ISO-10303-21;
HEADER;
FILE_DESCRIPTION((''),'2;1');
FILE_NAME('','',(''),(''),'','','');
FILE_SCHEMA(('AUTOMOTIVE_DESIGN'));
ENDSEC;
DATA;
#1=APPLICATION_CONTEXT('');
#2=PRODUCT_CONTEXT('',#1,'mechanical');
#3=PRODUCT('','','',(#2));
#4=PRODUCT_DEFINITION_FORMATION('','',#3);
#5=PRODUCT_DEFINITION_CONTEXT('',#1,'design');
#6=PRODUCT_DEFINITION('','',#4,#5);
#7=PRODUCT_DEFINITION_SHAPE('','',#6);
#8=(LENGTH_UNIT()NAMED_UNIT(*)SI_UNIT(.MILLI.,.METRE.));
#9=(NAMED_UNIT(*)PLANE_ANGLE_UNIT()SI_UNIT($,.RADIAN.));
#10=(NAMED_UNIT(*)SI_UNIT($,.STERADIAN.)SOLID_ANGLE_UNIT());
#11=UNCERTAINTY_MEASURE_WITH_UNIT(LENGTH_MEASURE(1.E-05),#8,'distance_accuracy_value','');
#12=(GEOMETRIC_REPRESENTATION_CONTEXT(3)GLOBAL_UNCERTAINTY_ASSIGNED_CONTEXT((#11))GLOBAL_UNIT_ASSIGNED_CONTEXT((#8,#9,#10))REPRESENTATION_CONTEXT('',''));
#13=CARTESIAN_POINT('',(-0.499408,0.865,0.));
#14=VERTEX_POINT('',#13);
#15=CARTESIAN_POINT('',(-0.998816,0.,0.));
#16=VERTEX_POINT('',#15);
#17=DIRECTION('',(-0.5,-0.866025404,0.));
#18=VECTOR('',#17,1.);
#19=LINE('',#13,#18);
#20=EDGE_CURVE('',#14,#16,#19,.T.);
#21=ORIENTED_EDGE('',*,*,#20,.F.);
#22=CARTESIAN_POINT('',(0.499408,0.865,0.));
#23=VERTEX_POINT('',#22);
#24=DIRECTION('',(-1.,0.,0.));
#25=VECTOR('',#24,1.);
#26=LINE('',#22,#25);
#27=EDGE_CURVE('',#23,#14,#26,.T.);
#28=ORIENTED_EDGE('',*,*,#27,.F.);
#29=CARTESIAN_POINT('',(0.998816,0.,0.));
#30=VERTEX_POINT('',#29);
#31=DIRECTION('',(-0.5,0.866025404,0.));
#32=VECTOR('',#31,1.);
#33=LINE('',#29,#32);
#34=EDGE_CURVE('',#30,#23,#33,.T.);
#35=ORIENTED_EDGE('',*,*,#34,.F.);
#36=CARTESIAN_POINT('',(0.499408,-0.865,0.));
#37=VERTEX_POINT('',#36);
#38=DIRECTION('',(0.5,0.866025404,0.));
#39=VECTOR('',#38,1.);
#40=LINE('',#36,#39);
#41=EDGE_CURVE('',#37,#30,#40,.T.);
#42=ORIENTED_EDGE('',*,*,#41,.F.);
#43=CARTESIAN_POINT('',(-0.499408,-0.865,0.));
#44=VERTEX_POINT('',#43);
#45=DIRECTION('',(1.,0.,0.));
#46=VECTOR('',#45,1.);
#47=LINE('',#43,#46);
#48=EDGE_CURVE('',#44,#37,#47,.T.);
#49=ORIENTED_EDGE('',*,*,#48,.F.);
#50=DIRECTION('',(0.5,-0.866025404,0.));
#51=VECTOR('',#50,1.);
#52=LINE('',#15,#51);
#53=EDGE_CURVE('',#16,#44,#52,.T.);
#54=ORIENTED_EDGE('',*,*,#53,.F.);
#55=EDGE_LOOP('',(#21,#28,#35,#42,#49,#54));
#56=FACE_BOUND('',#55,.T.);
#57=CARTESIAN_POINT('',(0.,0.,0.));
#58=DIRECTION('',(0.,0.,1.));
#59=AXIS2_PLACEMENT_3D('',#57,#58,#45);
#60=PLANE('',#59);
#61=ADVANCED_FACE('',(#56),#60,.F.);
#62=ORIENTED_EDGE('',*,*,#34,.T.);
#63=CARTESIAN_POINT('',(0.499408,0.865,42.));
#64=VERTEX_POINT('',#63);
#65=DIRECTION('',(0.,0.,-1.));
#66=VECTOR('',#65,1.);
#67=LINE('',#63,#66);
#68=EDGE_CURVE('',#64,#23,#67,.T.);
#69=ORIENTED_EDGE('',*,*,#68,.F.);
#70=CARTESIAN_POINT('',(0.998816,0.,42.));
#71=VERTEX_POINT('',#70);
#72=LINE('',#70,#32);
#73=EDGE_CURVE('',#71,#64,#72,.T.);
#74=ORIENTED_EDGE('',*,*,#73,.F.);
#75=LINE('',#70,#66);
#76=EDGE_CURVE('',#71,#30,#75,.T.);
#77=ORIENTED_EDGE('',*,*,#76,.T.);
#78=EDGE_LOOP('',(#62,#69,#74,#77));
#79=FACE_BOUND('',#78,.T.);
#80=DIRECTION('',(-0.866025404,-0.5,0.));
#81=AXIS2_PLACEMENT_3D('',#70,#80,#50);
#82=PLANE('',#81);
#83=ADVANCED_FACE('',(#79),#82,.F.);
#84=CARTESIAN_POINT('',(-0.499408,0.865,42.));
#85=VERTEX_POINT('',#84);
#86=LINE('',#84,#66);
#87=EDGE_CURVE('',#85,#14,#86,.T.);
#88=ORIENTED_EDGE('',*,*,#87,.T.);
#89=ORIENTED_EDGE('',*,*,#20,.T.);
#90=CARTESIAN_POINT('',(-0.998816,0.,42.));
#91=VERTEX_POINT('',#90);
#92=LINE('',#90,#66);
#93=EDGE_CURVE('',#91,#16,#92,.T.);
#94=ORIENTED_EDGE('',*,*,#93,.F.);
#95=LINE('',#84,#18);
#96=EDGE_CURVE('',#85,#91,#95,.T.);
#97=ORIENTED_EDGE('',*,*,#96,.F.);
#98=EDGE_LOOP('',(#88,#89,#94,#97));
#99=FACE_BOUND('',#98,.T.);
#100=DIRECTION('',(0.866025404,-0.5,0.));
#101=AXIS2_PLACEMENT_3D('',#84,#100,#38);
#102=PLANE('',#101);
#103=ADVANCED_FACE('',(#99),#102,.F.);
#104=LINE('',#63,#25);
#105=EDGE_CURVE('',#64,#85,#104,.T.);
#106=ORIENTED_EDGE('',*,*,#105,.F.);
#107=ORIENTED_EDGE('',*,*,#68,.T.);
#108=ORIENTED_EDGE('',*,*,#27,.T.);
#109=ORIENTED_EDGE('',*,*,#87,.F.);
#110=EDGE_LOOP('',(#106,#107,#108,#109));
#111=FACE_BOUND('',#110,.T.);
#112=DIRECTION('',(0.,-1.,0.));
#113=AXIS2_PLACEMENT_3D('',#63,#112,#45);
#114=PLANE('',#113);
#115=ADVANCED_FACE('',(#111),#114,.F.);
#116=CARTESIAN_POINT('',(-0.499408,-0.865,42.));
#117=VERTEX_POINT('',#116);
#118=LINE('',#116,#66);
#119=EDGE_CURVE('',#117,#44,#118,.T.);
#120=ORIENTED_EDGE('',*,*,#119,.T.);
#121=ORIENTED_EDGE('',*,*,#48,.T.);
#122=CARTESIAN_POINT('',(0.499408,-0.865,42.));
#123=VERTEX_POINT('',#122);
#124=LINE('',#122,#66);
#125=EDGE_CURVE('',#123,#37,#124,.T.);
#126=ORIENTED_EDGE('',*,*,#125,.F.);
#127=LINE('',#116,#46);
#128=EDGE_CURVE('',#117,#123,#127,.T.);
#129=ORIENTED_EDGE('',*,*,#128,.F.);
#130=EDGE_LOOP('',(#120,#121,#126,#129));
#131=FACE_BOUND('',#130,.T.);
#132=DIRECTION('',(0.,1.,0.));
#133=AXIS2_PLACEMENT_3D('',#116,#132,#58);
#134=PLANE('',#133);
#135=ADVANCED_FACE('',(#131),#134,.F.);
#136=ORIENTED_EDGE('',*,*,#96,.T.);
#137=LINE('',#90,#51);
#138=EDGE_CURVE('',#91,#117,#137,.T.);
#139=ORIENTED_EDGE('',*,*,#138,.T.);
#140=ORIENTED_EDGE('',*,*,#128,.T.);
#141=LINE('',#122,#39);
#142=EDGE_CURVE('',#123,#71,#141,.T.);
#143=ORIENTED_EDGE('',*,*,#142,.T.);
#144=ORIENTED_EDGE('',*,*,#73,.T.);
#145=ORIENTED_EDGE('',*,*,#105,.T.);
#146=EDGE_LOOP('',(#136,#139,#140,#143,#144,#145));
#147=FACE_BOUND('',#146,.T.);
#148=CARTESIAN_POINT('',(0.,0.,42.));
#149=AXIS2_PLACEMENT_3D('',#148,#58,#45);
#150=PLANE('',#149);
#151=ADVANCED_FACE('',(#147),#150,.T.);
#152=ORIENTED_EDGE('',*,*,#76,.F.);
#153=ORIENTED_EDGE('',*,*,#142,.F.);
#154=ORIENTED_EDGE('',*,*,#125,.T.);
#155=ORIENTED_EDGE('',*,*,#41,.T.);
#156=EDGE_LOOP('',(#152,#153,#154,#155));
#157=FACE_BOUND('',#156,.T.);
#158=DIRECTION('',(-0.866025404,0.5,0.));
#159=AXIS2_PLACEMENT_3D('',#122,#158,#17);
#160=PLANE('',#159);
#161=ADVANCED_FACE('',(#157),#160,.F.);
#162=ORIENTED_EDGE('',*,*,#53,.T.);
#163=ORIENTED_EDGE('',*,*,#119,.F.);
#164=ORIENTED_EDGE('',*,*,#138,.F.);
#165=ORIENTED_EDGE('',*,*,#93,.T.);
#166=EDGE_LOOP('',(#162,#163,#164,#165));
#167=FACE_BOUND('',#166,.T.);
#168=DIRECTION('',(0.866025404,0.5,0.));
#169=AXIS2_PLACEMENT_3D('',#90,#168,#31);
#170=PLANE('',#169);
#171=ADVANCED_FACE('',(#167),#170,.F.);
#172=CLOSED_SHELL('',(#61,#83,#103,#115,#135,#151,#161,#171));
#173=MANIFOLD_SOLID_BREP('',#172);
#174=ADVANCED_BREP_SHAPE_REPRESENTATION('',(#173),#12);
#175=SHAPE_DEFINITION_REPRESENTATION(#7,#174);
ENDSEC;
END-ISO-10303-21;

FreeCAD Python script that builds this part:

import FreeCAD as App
import Part
import Sketcher
from FreeCAD import Vector
Q = App.Units.Quantity


def add_polygon(sketch, points):
    """Adds a closed chain of lines whose ends are joined by coincident constraints."""
    first, n = sketch.GeometryCount, len(points)
    for a, b in zip(points, points[1:] + points[:1]):
        sketch.addGeometry(Part.LineSegment(App.Vector(*a, 0), App.Vector(*b, 0)), False)
    for i in range(n):
        sketch.addConstraint(Sketcher.Constraint("Coincident", first + i, 2, first + (i + 1) % n, 1))

doc = App.newDocument("Part")
params = doc.addObject("Spreadsheet::Sheet", "Params")
for row, (alias, value) in enumerate([
    ("pad1_length", "42 mm"),
], start=1):
    params.set(f"A{row}", alias)
    params.set(f"B{row}", "=" + value)
    params.setAlias(f"B{row}", alias)

body = doc.addObject("PartDesign::Body", "Body")

# Sketch on XY plane
sketch1 = body.newObject("Sketcher::SketchObject", "Sketch")
sketch1.AttachmentSupport = (doc.getObject("XY_Plane"), [""])
sketch1.MapMode = "FlatFace"
add_polygon(sketch1, [(1, 0), (0.5, 0.9), (-0.5, 0.9), (-1, 0), (-0.5, -0.9), (0.5, -0.9)])  # lines 0-5
sketch1.addConstraint(Sketcher.Constraint("Horizontal", 1))
sketch1.addConstraint(Sketcher.Constraint("Horizontal", 4))
sketch1.addConstraint(Sketcher.Constraint("Symmetric", 0, 2, 3, 2, -1, 1))
sketch1.addConstraint(Sketcher.Constraint("Symmetric", 2, 2, 5, 2, -1, 1))
sketch1.addConstraint(Sketcher.Constraint("PointOnObject", 2, 2, -1))
sketch1.addConstraint(Sketcher.Constraint("Parallel", 2, 5))
sketch1.addConstraint(Sketcher.Constraint("Vertical", 1, 2, 3, 2))
sketch1.addConstraint(Sketcher.Constraint("Angle", 0, Q("120 deg")))
sketch1.addConstraint(Sketcher.Constraint("DistanceY", 3, 2, 1, 2, 1.73))
sketch1.addConstraint(Sketcher.Constraint("DistanceX", 1, 2, 1, 1, 0.998816))
pad1 = body.newObject("PartDesign::Pad", "Pad")
pad1.Profile = sketch1
pad1.setExpression("Length", "Params.pad1_length")

doc.recompute()
